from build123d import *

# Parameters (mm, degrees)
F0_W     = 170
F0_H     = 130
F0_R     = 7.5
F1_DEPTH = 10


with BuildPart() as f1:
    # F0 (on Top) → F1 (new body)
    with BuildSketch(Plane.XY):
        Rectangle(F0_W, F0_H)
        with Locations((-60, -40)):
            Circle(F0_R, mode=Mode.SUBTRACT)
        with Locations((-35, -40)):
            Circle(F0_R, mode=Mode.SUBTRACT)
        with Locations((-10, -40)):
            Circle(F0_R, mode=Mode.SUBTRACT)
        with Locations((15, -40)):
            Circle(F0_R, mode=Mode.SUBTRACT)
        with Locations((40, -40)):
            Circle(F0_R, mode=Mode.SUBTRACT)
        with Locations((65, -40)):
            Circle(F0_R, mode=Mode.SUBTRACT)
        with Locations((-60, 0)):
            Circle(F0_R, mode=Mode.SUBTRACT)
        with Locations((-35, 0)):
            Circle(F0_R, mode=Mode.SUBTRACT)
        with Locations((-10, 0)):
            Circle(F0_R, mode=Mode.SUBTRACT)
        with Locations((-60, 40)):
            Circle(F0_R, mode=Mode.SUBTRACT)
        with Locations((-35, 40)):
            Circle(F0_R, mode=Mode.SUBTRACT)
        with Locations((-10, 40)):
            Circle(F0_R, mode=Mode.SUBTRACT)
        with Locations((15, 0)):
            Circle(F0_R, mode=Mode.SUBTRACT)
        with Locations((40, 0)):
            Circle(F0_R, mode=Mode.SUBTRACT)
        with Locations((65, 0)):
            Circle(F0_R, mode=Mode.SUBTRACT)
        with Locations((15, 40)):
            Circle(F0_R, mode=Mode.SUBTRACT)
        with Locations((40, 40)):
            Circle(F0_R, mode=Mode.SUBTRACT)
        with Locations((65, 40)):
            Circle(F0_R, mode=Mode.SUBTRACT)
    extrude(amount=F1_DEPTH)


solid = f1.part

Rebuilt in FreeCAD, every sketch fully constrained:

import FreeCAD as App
import Part
import Sketcher
Q = App.Units.Quantity


def add_polygon(sketch, points):
    """Adds a closed chain of lines whose ends are joined by coincident constraints."""
    first, n = sketch.GeometryCount, len(points)
    for a, b in zip(points, points[1:] + points[:1]):
        sketch.addGeometry(Part.LineSegment(App.Vector(*a, 0), App.Vector(*b, 0)), False)
    for i in range(n):
        sketch.addConstraint(Sketcher.Constraint("Coincident", first + i, 2, first + (i + 1) % n, 1))

doc = App.newDocument("Part")
body = doc.addObject("PartDesign::Body", "Body")

sketch1 = body.newObject("Sketcher::SketchObject", "Sketch")
sketch1.AttachmentSupport = (doc.getObject("XY_Plane"), [""])
sketch1.MapMode = "FlatFace"
add_polygon(sketch1, [(-85, 65), (-85, -65), (85, -65), (85, 65)])
sketch1.addGeometry(Part.Circle(App.Vector(-60, -40, 0), App.Vector(0, 0, 1), 8), False)
sketch1.addGeometry(Part.Circle(App.Vector(-35, -40, 0), App.Vector(0, 0, 1), 8), False)
sketch1.addGeometry(Part.Circle(App.Vector(-10, -40, 0), App.Vector(0, 0, 1), 8), False)
sketch1.addGeometry(Part.Circle(App.Vector(15, -40, 0), App.Vector(0, 0, 1), 8), False)
sketch1.addGeometry(Part.Circle(App.Vector(40, -40, 0), App.Vector(0, 0, 1), 8), False)
sketch1.addGeometry(Part.Circle(App.Vector(65, -40, 0), App.Vector(0, 0, 1), 8), False)
sketch1.addGeometry(Part.Circle(App.Vector(-60, 0, 0), App.Vector(0, 0, 1), 8), False)
sketch1.addGeometry(Part.Circle(App.Vector(-35, 0, 0), App.Vector(0, 0, 1), 8), False)
sketch1.addGeometry(Part.Circle(App.Vector(-10, 0, 0), App.Vector(0, 0, 1), 8), False)
sketch1.addGeometry(Part.Circle(App.Vector(-60, 40, 0), App.Vector(0, 0, 1), 8), False)
sketch1.addGeometry(Part.Circle(App.Vector(-35, 40, 0), App.Vector(0, 0, 1), 8), False)
sketch1.addGeometry(Part.Circle(App.Vector(-10, 40, 0), App.Vector(0, 0, 1), 8), False)
sketch1.addGeometry(Part.Circle(App.Vector(15, 0, 0), App.Vector(0, 0, 1), 8), False)
sketch1.addGeometry(Part.Circle(App.Vector(40, 0, 0), App.Vector(0, 0, 1), 8), False)
sketch1.addGeometry(Part.Circle(App.Vector(65, 0, 0), App.Vector(0, 0, 1), 8), False)
sketch1.addGeometry(Part.Circle(App.Vector(15, 40, 0), App.Vector(0, 0, 1), 8), False)
sketch1.addGeometry(Part.Circle(App.Vector(40, 40, 0), App.Vector(0, 0, 1), 8), False)
sketch1.addGeometry(Part.Circle(App.Vector(65, 40, 0), App.Vector(0, 0, 1), 8), False)
sketch1.addConstraint([
    Sketcher.Constraint("Vertical", 0),
    Sketcher.Constraint("Horizontal", 1),
    Sketcher.Constraint("Vertical", 2),
    Sketcher.Constraint("Horizontal", 3),
    Sketcher.Constraint("Equal", 4, 5),
    Sketcher.Constraint("Equal", 5, 6),
    Sketcher.Constraint("Equal", 6, 7),
    Sketcher.Constraint("Equal", 7, 8),
    Sketcher.Constraint("Equal", 8, 9),
    Sketcher.Constraint("Equal", 9, 10),
    Sketcher.Constraint("Equal", 10, 11),
    Sketcher.Constraint("Equal", 11, 12),
    Sketcher.Constraint("Equal", 12, 13),
    Sketcher.Constraint("Equal", 13, 14),
    Sketcher.Constraint("Equal", 14, 15),
    Sketcher.Constraint("Equal", 15, 16),
    Sketcher.Constraint("Equal", 16, 17),
    Sketcher.Constraint("Equal", 17, 18),
    Sketcher.Constraint("Equal", 18, 19),
    Sketcher.Constraint("Equal", 19, 20),
    Sketcher.Constraint("Equal", 20, 21),
    Sketcher.Constraint("Symmetric", 0, 2, 2, 2, -1, 1),
    Sketcher.Constraint("Symmetric", 4, 3, 13, 3, -1),
    Sketcher.Constraint("Symmetric", 5, 3, 14, 3, -1),
    Sketcher.Constraint("Symmetric", 6, 3, 15, 3, -1),
    Sketcher.Constraint("Symmetric", 7, 3, 19, 3, -1),
    Sketcher.Constraint("Symmetric", 8, 3, 20, 3, -1),
    Sketcher.Constraint("Symmetric", 9, 3, 21, 3, -1),
    Sketcher.Constraint("PointOnObject", 10, 3, -1),
    Sketcher.Constraint("PointOnObject", 11, 3, -1),
    Sketcher.Constraint("PointOnObject", 12, 3, -1),
    Sketcher.Constraint("PointOnObject", 16, 3, -1),
    Sketcher.Constraint("PointOnObject", 17, 3, -1),
    Sketcher.Constraint("PointOnObject", 18, 3, -1),
    Sketcher.Constraint("Horizontal", 4, 3, 5, 3),
    Sketcher.Constraint("Horizontal", 5, 3, 6, 3),
    Sketcher.Constraint("Horizontal", 6, 3, 7, 3),
    Sketcher.Constraint("Horizontal", 7, 3, 8, 3),
    Sketcher.Constraint("Horizontal", 8, 3, 9, 3),
    Sketcher.Constraint("Vertical", 4, 3, 10, 3),
    Sketcher.Constraint("Vertical", 5, 3, 11, 3),
    Sketcher.Constraint("Vertical", 6, 3, 12, 3),
    Sketcher.Constraint("Vertical", 7, 3, 16, 3),
    Sketcher.Constraint("Vertical", 8, 3, 17, 3),
    Sketcher.Constraint("Vertical", 9, 3, 18, 3),
    Sketcher.Constraint("Diameter", 4, Q("15 mm")),
    Sketcher.Constraint("DistanceX", 1, 1, 1, 2, Q("170 mm")),
    Sketcher.Constraint("DistanceY", 0, 2, 0, 1, Q("130 mm")),
    Sketcher.Constraint("DistanceX", 4, 3, -1, 1, Q("60 mm")),
    Sketcher.Constraint("DistanceY", 4, 3, -1, 1, Q("40 mm")),
    Sketcher.Constraint("DistanceX", 5, 3, -1, 1, Q("35 mm")),
    Sketcher.Constraint("DistanceX", 6, 3, -1, 1, Q("10 mm")),
    Sketcher.Constraint("DistanceX", -1, 1, 7, 3, Q("15 mm")),
    Sketcher.Constraint("DistanceX", -1, 1, 8, 3, Q("40 mm")),
    Sketcher.Constraint("DistanceX", -1, 1, 9, 3, Q("65 mm")),
])
pad1 = body.newObject("PartDesign::Pad", "Pad")
pad1.Profile = sketch1
pad1.Length = 10

doc.recompute()
